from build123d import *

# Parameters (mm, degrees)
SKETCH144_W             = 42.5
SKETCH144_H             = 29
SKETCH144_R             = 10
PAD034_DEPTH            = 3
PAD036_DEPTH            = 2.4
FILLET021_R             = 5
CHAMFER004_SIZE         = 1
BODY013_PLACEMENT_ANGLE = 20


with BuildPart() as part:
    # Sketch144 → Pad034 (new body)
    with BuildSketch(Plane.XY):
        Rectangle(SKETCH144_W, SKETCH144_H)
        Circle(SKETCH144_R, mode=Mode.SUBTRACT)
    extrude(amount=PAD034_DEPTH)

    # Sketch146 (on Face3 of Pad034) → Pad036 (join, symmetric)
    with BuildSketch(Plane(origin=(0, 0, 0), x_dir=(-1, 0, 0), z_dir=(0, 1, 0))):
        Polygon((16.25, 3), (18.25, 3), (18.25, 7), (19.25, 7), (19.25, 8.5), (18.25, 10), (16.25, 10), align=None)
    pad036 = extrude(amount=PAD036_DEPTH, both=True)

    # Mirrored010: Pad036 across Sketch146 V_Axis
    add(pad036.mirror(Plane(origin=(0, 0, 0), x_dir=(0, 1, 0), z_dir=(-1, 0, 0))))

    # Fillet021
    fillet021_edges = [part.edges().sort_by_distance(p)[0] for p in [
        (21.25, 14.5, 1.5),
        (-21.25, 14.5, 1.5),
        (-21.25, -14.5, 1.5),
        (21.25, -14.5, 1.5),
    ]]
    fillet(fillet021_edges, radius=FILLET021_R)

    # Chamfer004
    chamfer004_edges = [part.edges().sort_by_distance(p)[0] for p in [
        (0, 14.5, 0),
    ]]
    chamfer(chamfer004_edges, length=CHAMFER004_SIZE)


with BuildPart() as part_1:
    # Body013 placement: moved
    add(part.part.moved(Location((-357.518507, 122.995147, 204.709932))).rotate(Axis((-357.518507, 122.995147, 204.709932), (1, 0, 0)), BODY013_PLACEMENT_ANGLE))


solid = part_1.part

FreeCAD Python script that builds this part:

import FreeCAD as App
import Part
import Sketcher
from FreeCAD import Vector


def edges_at(feature, points):
    """Names of the edges that pass closest to the given points."""
    edges = feature.Shape.Edges
    near = lambda p: min(range(len(edges)), key=lambda i: edges[i].distToShape(Part.Vertex(*p))[0])
    return sorted({f"Edge{near(p) + 1}" for p in points})


def add_polygon(sketch, points):
    """Adds a closed chain of lines whose ends are joined by coincident constraints."""
    first, n = sketch.GeometryCount, len(points)
    for a, b in zip(points, points[1:] + points[:1]):
        sketch.addGeometry(Part.LineSegment(App.Vector(*a, 0), App.Vector(*b, 0)), False)
    for i in range(n):
        sketch.addConstraint(Sketcher.Constraint("Coincident", first + i, 2, first + (i + 1) % n, 1))

doc = App.newDocument("Part")
params = doc.addObject("Spreadsheet::Sheet", "Params")
for row, (alias, value) in enumerate([
    ("sketch1_diameter", "20 mm"),
    ("sketch1_height", "29 mm"),
    ("sketch1_width", "42.5 mm"),
    ("pad1_length", "3 mm"),
    ("sketch2_width", "2 mm"),
    ("sketch2_width2", "1 mm"),
    ("sketch2_height", "4 mm"),
    ("sketch2_height2", "7 mm"),
    ("sketch2_height3", "1.5 mm"),
    ("pad2_length", "4.8 mm"),
    ("fillet_radius", "5 mm"),
    ("chamfer_size", "1 mm"),
], start=1):
    params.set(f"A{row}", alias)
    params.set(f"B{row}", "=" + value)
    params.setAlias(f"B{row}", alias)

body = doc.addObject("PartDesign::Body", "Body")

sketch1 = doc.addObject("Sketcher::SketchObject", "Sketch")
body.addObject(sketch1)
sketch1.AttachmentSupport = (doc.XY_Plane, [""])
sketch1.MapMode = "FlatFace"
add_polygon(sketch1, [(-21, 14), (-21, -14), (21, -14), (21, 14)])
sketch1.addGeometry(Part.Circle(Vector(0, 0, 0), Vector(0, 0, 1), 10), False)
sketch1.addConstraint([
    Sketcher.Constraint("Vertical", 0),
    Sketcher.Constraint("Horizontal", 1),
    Sketcher.Constraint("Vertical", 2),
    Sketcher.Constraint("Horizontal", 3),
    Sketcher.Constraint("Coincident", 4, 3, -1, 1),
    Sketcher.Constraint("Symmetric", 0, 2, 2, 2, -1, 1),
    Sketcher.Constraint("Diameter", 4, 20.0),
    Sketcher.Constraint("DistanceY", 0, 2, 0, 1, 29.0),
    Sketcher.Constraint("DistanceX", 1, 1, 1, 2, 42.5),
])
sketch1.setExpression("Constraints[10]", "Params.sketch1_diameter")
sketch1.setExpression("Constraints[11]", "Params.sketch1_height")
sketch1.setExpression("Constraints[12]", "Params.sketch1_width")
pad1 = doc.addObject("PartDesign::Pad", "Pad")
body.addObject(pad1)
pad1.Profile = sketch1
pad1.setExpression("Length", "Params.pad1_length")

sketch2 = doc.addObject("Sketcher::SketchObject", "Sketch001")
body.addObject(sketch2)
sketch2.AttachmentSupport = (doc.XZ_Plane, [""])
sketch2.MapMode = "FlatFace"
add_polygon(sketch2, [(-16.2, 3), (-18.2, 3), (-18.2, 7), (-19.2, 7), (-19.2, 8.5), (-18.2, 10), (-16.2, 10)])
sketch2.addConstraint([
    Sketcher.Constraint("Horizontal", 0),
    Sketcher.Constraint("Vertical", 1),
    Sketcher.Constraint("Horizontal", 2),
    Sketcher.Constraint("Vertical", 3),
    Sketcher.Constraint("Horizontal", 5),
    Sketcher.Constraint("Vertical", 6),
    Sketcher.Constraint("Vertical", 1, 2, 4, 2),
    Sketcher.Constraint("DistanceX", 0, 2, 0, 1, 2.0),
    Sketcher.Constraint("DistanceX", 2, 2, 2, 1, 1.0),
    Sketcher.Constraint("DistanceY", 1, 1, 1, 2, 4.0),
    Sketcher.Constraint("DistanceY", 6, 2, 6, 1, 7.0),
    Sketcher.Constraint("DistanceY", 3, 1, 3, 2, 1.5),
    Sketcher.Constraint("DistanceY", -1, 1, 0, 2, 3.0),
    Sketcher.Constraint("DistanceX", 0, 2, -1, 1, 18.25),
])
sketch2.setExpression("Constraints[14]", "Params.sketch2_width")
sketch2.setExpression("Constraints[15]", "Params.sketch2_width2")
sketch2.setExpression("Constraints[16]", "Params.sketch2_height")
sketch2.setExpression("Constraints[17]", "Params.sketch2_height2")
sketch2.setExpression("Constraints[18]", "Params.sketch2_height3")
pad2 = doc.addObject("PartDesign::Pad", "Pad001")
body.addObject(pad2)
pad2.Profile = sketch2
pad2.setExpression("Length", "Params.pad2_length")
pad2.Midplane = True
doc.recompute()

mirrored = doc.addObject("PartDesign::Mirrored", "Mirrored")
body.addObject(mirrored)
mirrored.Originals = [pad2]
mirrored.MirrorPlane = (doc.YZ_Plane, [""])
body.Tip = mirrored
doc.recompute()

fillet = doc.addObject("PartDesign::Fillet", "Fillet")
body.addObject(fillet)
fillet.Base = (mirrored, edges_at(mirrored, [
    (21.25, 14.5, 1.5),
    (-21.25, 14.5, 1.5),
    (-21.25, -14.5, 1.5),
    (21.25, -14.5, 1.5),
]))
fillet.setExpression("Radius", "Params.fillet_radius")
doc.recompute()

chamfer = doc.addObject("PartDesign::Chamfer", "Chamfer")
body.addObject(chamfer)
chamfer.Base = (fillet, edges_at(fillet, [(0, 14.5, 0)]))
chamfer.setExpression("Size", "Params.chamfer_size")
body2 = doc.addObject("PartDesign::Body", "Body001")
doc.recompute()

body.Placement = App.Placement(Vector(-357.518507, 122.995147, 204.709932), App.Rotation(Vector(1, 0, 0), 20))
boolean = doc.addObject("PartDesign::Boolean", "Boolean")
body2.addObject(boolean)
boolean.Type = "Fuse"
boolean.addObjects([body])

doc.recompute()
